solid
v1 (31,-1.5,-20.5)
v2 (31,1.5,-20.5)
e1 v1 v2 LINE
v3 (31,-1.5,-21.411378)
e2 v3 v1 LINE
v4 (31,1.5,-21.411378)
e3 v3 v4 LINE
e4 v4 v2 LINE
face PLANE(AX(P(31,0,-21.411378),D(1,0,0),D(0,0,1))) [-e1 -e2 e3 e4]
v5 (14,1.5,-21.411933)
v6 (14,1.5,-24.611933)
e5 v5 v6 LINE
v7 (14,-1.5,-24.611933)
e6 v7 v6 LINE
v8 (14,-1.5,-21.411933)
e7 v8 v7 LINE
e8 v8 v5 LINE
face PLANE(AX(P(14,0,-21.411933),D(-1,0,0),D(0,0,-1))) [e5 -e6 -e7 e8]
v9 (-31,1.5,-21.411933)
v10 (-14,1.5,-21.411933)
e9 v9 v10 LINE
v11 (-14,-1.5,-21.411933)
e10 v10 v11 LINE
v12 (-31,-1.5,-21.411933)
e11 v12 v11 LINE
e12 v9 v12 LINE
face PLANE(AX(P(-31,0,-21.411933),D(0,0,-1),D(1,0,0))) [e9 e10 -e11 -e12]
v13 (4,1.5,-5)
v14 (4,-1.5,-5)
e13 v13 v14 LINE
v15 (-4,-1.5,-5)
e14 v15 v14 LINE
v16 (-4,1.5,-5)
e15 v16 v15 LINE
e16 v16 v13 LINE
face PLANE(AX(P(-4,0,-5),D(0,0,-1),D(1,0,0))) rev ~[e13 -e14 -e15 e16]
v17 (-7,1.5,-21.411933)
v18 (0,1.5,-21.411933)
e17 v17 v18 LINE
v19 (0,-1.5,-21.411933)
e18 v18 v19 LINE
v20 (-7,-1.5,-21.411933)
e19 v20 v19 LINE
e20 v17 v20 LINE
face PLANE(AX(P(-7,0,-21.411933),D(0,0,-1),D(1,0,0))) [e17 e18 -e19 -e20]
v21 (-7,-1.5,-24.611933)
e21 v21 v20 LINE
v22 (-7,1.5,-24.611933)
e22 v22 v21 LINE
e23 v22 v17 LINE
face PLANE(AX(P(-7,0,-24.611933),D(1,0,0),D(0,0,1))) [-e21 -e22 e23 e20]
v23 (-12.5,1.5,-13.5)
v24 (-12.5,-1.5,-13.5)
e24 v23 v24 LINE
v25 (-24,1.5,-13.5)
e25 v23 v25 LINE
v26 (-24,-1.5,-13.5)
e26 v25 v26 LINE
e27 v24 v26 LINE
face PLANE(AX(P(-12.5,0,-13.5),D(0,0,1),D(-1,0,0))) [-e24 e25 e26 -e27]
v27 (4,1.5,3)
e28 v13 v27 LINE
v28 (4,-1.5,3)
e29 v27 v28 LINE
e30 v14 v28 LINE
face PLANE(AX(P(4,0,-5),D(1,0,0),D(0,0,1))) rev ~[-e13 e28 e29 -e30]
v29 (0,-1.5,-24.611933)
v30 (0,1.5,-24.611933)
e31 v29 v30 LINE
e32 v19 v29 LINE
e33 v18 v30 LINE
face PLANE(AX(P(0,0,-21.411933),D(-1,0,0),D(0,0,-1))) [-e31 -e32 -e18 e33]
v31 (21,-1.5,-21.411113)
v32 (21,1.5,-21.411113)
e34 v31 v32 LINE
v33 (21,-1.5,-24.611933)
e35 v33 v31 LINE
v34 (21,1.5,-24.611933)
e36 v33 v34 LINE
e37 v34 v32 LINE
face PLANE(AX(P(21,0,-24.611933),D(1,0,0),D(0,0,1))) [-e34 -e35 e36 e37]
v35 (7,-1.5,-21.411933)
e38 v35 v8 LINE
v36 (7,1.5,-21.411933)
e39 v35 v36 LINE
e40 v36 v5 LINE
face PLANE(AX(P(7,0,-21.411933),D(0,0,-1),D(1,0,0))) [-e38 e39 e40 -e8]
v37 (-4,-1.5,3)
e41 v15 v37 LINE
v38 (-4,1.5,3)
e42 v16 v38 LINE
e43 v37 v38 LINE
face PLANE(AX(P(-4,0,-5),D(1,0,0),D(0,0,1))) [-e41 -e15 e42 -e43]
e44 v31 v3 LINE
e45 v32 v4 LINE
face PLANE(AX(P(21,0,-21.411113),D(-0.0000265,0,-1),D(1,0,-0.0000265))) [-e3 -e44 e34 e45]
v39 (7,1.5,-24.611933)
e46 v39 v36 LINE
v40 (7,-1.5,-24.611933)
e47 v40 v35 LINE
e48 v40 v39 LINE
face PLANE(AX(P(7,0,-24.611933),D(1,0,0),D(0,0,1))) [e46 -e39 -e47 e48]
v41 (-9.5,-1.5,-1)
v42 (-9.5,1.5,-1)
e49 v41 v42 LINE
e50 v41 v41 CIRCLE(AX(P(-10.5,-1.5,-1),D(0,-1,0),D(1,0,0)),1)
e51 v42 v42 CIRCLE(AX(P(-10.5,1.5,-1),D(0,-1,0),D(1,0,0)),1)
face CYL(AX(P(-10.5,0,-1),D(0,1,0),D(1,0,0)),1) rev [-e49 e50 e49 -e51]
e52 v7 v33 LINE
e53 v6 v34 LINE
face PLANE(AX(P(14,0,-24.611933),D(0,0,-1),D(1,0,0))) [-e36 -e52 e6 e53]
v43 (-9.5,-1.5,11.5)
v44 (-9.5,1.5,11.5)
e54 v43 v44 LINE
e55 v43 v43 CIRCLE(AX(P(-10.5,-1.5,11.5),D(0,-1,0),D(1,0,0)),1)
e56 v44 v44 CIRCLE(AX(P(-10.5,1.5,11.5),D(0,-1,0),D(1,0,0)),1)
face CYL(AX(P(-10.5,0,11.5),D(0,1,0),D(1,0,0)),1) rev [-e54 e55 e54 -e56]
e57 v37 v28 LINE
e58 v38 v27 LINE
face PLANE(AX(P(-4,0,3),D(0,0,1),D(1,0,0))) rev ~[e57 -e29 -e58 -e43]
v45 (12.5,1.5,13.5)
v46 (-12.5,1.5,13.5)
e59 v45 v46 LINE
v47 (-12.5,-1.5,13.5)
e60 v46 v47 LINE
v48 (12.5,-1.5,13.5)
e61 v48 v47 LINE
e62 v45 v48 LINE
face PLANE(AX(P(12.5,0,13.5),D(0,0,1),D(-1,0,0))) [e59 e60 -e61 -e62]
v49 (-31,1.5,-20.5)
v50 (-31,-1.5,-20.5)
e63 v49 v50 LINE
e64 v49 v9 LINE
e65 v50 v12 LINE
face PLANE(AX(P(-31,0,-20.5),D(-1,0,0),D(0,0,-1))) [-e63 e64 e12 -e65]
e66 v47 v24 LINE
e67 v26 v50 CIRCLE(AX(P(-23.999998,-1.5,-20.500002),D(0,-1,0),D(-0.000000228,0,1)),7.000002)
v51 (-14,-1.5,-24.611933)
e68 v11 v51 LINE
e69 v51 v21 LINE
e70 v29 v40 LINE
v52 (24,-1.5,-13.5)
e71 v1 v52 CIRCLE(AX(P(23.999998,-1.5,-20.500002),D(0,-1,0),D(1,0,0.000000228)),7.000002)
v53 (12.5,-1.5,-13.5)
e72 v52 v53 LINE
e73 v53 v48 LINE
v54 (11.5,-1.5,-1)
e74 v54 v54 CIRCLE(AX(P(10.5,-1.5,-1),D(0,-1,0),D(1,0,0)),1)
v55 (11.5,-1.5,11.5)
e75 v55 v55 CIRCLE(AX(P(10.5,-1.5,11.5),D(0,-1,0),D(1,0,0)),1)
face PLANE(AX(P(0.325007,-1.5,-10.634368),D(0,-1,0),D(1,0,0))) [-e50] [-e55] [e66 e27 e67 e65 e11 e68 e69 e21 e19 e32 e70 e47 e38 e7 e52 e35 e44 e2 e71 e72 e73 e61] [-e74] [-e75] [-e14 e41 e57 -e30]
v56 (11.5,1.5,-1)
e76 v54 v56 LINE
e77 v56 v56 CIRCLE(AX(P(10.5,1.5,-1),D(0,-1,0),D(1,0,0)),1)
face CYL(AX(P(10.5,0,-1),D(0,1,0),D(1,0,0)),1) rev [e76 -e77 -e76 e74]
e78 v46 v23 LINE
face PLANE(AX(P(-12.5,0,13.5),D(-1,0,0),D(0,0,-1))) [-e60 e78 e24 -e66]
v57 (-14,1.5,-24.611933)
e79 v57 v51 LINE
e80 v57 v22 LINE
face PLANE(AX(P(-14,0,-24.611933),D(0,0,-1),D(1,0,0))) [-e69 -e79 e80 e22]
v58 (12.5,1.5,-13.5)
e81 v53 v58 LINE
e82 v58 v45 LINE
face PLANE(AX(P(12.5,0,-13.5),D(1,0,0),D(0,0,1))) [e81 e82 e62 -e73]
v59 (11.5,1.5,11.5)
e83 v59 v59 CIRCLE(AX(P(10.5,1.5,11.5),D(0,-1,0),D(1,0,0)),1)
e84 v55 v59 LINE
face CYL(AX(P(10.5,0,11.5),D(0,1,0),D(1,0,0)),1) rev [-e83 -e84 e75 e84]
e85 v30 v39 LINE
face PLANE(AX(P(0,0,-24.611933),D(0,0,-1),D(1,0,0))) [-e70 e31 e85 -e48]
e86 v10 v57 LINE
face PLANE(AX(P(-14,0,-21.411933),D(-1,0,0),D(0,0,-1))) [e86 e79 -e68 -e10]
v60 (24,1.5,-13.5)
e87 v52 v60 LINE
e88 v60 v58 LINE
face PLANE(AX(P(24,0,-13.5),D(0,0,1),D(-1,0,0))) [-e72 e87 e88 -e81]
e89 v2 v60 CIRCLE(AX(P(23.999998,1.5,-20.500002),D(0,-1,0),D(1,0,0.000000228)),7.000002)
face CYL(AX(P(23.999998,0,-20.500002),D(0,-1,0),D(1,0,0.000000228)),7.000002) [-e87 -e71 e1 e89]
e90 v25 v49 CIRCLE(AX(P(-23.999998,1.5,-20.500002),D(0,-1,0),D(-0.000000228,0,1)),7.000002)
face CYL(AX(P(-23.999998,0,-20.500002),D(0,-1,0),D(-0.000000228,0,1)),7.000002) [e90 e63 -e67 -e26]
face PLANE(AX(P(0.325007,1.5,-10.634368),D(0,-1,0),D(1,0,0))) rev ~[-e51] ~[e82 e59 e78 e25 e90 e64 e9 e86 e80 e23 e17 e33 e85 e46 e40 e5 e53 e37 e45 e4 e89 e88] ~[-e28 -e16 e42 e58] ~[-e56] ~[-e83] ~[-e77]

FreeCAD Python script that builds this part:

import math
import FreeCAD as App
import Part
import Sketcher
from FreeCAD import Vector


def add_polygon(sketch, points):
    """Adds a closed chain of lines whose ends are joined by coincident constraints."""
    first, n = sketch.GeometryCount, len(points)
    for a, b in zip(points, points[1:] + points[:1]):
        sketch.addGeometry(Part.LineSegment(App.Vector(*a, 0), App.Vector(*b, 0)), False)
    for i in range(n):
        sketch.addConstraint(Sketcher.Constraint("Coincident", first + i, 2, first + (i + 1) % n, 1))

doc = App.newDocument("Part")
params = doc.addObject("Spreadsheet::Sheet", "Params")
for row, (alias, value) in enumerate([
    ("sketch1_diameter", "2 mm"),
    ("sketch1_radius", "7.000002 mm"),
    ("sketch1_width", "25 mm"),
    ("sketch1_width2", "17 mm"),
    ("sketch1_width3", "7 mm"),
    ("pad1_length", "3 mm"),
], start=1):
    params.set(f"A{row}", alias)
    params.set(f"B{row}", "=" + value)
    params.setAlias(f"B{row}", alias)

body = doc.addObject("PartDesign::Body", "Body")

# Sketch on XZ plane
sketch1 = doc.addObject("Sketcher::SketchObject", "Sketch")
body.addObject(sketch1)
sketch1.AttachmentSupport = (doc.XZ_Plane, [""])
sketch1.MapMode = "FlatFace"
sketch1.addGeometry(Part.LineSegment(Vector(12.5, -13.5, 0), Vector(12.5, 13.5, 0)), False)  # 0
sketch1.addGeometry(Part.LineSegment(Vector(12.5, 13.5, 0), Vector(-12.5, 13.5, 0)), False)  # 1
sketch1.addGeometry(Part.LineSegment(Vector(-12.5, 13.5, 0), Vector(-12.5, -13.5, 0)), False)  # 2
sketch1.addGeometry(Part.LineSegment(Vector(-12.5, -13.5, 0), Vector(-24, -13.5, 0)), False)  # 3
sketch1.addGeometry(Part.ArcOfCircle(Part.Circle(Vector(-24, -20.5, 0), Vector(0, 0, 1), 7), math.radians(90), math.radians(180)), False)  # 4
sketch1.addGeometry(Part.LineSegment(Vector(-31, -20.5, 0), Vector(-31, -21.4, 0)), False)  # 5
sketch1.addGeometry(Part.LineSegment(Vector(-31, -21.4, 0), Vector(-14, -21.4, 0)), False)  # 6
sketch1.addGeometry(Part.LineSegment(Vector(-14, -21.4, 0), Vector(-14, -24.6, 0)), False)  # 7
sketch1.addGeometry(Part.LineSegment(Vector(-14, -24.6, 0), Vector(-7, -24.6, 0)), False)  # 8
sketch1.addGeometry(Part.LineSegment(Vector(-7, -24.6, 0), Vector(-7, -21.4, 0)), False)  # 9
sketch1.addGeometry(Part.LineSegment(Vector(-7, -21.4, 0), Vector(0, -21.4, 0)), False)  # 10
sketch1.addGeometry(Part.LineSegment(Vector(0, -21.4, 0), Vector(0, -24.6, 0)), False)  # 11
sketch1.addGeometry(Part.LineSegment(Vector(0, -24.6, 0), Vector(7, -24.6, 0)), False)  # 12
sketch1.addGeometry(Part.LineSegment(Vector(7, -24.6, 0), Vector(7, -21.4, 0)), False)  # 13
sketch1.addGeometry(Part.LineSegment(Vector(7, -21.4, 0), Vector(14, -21.4, 0)), False)  # 14
sketch1.addGeometry(Part.LineSegment(Vector(14, -21.4, 0), Vector(14, -24.6, 0)), False)  # 15
sketch1.addGeometry(Part.LineSegment(Vector(14, -24.6, 0), Vector(21, -24.6, 0)), False)  # 16
sketch1.addGeometry(Part.LineSegment(Vector(21, -24.6, 0), Vector(21, -21.4, 0)), False)  # 17
sketch1.addGeometry(Part.LineSegment(Vector(21, -21.4, 0), Vector(31, -21.4, 0)), False)  # 18
sketch1.addGeometry(Part.LineSegment(Vector(31, -21.4, 0), Vector(31, -20.5, 0)), False)  # 19
sketch1.addGeometry(Part.ArcOfCircle(Part.Circle(Vector(24, -20.5, 0), Vector(0, 0, 1), 7), math.radians(0), math.radians(90)), False)  # 20
sketch1.addGeometry(Part.LineSegment(Vector(24, -13.5, 0), Vector(12.5, -13.5, 0)), False)  # 21
sketch1.addGeometry(Part.Circle(Vector(-10.5, -1, 0), Vector(0, 0, 1), 1), False)  # 22
add_polygon(sketch1, [(4, -5), (-4, -5), (-4, 3), (4, 3)])  # lines 23-26
sketch1.addGeometry(Part.Circle(Vector(10.5, -1, 0), Vector(0, 0, 1), 1), False)  # 27
sketch1.addGeometry(Part.Circle(Vector(-10.5, 11.5, 0), Vector(0, 0, 1), 1), False)  # 28
sketch1.addGeometry(Part.Circle(Vector(10.5, 11.5, 0), Vector(0, 0, 1), 1), False)  # 29
sketch1.addConstraint([
    Sketcher.Constraint("Coincident", 0, 2, 1, 1),
    Sketcher.Constraint("Coincident", 1, 2, 2, 1),
    Sketcher.Constraint("Coincident", 2, 2, 3, 1),
    Sketcher.Constraint("Tangent", 3, 2, 4, 1),
    Sketcher.Constraint("Tangent", 4, 2, 5, 1),
    Sketcher.Constraint("Coincident", 5, 2, 6, 1),
    Sketcher.Constraint("Coincident", 6, 2, 7, 1),
    Sketcher.Constraint("Coincident", 7, 2, 8, 1),
    Sketcher.Constraint("Coincident", 8, 2, 9, 1),
    Sketcher.Constraint("Coincident", 9, 2, 10, 1),
    Sketcher.Constraint("Coincident", 10, 2, 11, 1),
    Sketcher.Constraint("Coincident", 11, 2, 12, 1),
    Sketcher.Constraint("Coincident", 12, 2, 13, 1),
    Sketcher.Constraint("Coincident", 13, 2, 14, 1),
    Sketcher.Constraint("Coincident", 14, 2, 15, 1),
    Sketcher.Constraint("Coincident", 15, 2, 16, 1),
    Sketcher.Constraint("Coincident", 16, 2, 17, 1),
    Sketcher.Constraint("Coincident", 17, 2, 18, 1),
    Sketcher.Constraint("Coincident", 18, 2, 19, 1),
    Sketcher.Constraint("Tangent", 19, 2, 20, 1),
    Sketcher.Constraint("Tangent", 20, 2, 21, 1),
    Sketcher.Constraint("Coincident", 21, 2, 0, 1),
    Sketcher.Constraint("Vertical", 0),
    Sketcher.Constraint("Horizontal", 1),
    Sketcher.Constraint("Vertical", 2),
    Sketcher.Constraint("Horizontal", 3),
    Sketcher.Constraint("Vertical", 5),
    Sketcher.Constraint("Horizontal", 6),
    Sketcher.Constraint("Vertical", 7),
    Sketcher.Constraint("Horizontal", 8),
    Sketcher.Constraint("Vertical", 9),
    Sketcher.Constraint("Horizontal", 10),
    Sketcher.Constraint("Vertical", 11),
    Sketcher.Constraint("Horizontal", 12),
    Sketcher.Constraint("Vertical", 13),
    Sketcher.Constraint("Horizontal", 14),
    Sketcher.Constraint("Vertical", 15),
    Sketcher.Constraint("Horizontal", 16),
    Sketcher.Constraint("Vertical", 17),
    Sketcher.Constraint("Vertical", 19),
    Sketcher.Constraint("Horizontal", 21),
    Sketcher.Constraint("Horizontal", 23),
    Sketcher.Constraint("Vertical", 24),
    Sketcher.Constraint("Horizontal", 25),
    Sketcher.Constraint("Vertical", 26),
    Sketcher.Constraint("Equal", 4, 20),
    Sketcher.Constraint("Equal", 22, 27),
    Sketcher.Constraint("Equal", 27, 28),
    Sketcher.Constraint("Equal", 28, 29),
    Sketcher.Constraint("Symmetric", 0, 2, 2, 2, -1, 1),
    Sketcher.Constraint("Symmetric", 4, 3, 20, 3, -2),
    Sketcher.Constraint("Symmetric", 22, 3, 27, 3, -2),
    Sketcher.Constraint("Symmetric", 28, 3, 29, 3, -2),
    Sketcher.Constraint("Symmetric", 8, 2, 12, 2, -2),
    Sketcher.Constraint("Symmetric", 6, 2, 14, 2, -2),
    Sketcher.Constraint("PointOnObject", 10, 2, -2),
    Sketcher.Constraint("Horizontal", 6, 2, 9, 2),
    Sketcher.Constraint("Horizontal", 12, 2, 15, 2),
    Sketcher.Constraint("Vertical", 22, 3, 28, 3),
    Sketcher.Constraint("Equal", 8, 10),
    Sketcher.Constraint("Equal", 14, 16),
    Sketcher.Constraint("Equal", 25, 24),
    Sketcher.Constraint("Diameter", 22, 2.0),
    Sketcher.Constraint("Radius", 4, 7.000002),
    Sketcher.Constraint("DistanceX", 1, 2, 1, 1, 25.0),
    Sketcher.Constraint("DistanceX", 6, 1, 6, 2, 17.0),
    Sketcher.Constraint("DistanceX", 8, 1, 8, 2, 7.0),
    Sketcher.Constraint("DistanceX", 23, 2, 23, 1, 8.0),
    Sketcher.Constraint("DistanceY", 0, 1, 0, 2, 27.0),
    Sketcher.Constraint("DistanceY", 7, 2, 7, 1, 3.2),
    Sketcher.Constraint("DistanceY", 22, 3, -1, 1, 1.0),
    Sketcher.Constraint("DistanceX", 23, 2, -1, 1, 4.0),
    Sketcher.Constraint("DistanceY", 23, 2, -1, 1, 5.0),
    Sketcher.Constraint("DistanceX", 22, 3, 27, 3, 21.0),
    Sketcher.Constraint("DistanceY", 4, 3, 28, 3, 32.000002),
    Sketcher.Constraint("DistanceY", 17, 1, 17, 2, 3.20082),
    Sketcher.Constraint("DistanceY", 5, 2, 5, 1, 0.911933),
    Sketcher.Constraint("DistanceY", 19, 1, 19, 2, 0.911378),
])
sketch1.setExpression("Constraints[66]", "Params.sketch1_diameter")
sketch1.setExpression("Constraints[67]", "Params.sketch1_radius")
sketch1.setExpression("Constraints[68]", "Params.sketch1_width")
sketch1.setExpression("Constraints[69]", "Params.sketch1_width2")
sketch1.setExpression("Constraints[70]", "Params.sketch1_width3")
pad1 = doc.addObject("PartDesign::Pad", "Pad")
body.addObject(pad1)
pad1.Profile = sketch1
pad1.setExpression("Length", "Params.pad1_length")
pad1.Midplane = True

doc.recompute()
